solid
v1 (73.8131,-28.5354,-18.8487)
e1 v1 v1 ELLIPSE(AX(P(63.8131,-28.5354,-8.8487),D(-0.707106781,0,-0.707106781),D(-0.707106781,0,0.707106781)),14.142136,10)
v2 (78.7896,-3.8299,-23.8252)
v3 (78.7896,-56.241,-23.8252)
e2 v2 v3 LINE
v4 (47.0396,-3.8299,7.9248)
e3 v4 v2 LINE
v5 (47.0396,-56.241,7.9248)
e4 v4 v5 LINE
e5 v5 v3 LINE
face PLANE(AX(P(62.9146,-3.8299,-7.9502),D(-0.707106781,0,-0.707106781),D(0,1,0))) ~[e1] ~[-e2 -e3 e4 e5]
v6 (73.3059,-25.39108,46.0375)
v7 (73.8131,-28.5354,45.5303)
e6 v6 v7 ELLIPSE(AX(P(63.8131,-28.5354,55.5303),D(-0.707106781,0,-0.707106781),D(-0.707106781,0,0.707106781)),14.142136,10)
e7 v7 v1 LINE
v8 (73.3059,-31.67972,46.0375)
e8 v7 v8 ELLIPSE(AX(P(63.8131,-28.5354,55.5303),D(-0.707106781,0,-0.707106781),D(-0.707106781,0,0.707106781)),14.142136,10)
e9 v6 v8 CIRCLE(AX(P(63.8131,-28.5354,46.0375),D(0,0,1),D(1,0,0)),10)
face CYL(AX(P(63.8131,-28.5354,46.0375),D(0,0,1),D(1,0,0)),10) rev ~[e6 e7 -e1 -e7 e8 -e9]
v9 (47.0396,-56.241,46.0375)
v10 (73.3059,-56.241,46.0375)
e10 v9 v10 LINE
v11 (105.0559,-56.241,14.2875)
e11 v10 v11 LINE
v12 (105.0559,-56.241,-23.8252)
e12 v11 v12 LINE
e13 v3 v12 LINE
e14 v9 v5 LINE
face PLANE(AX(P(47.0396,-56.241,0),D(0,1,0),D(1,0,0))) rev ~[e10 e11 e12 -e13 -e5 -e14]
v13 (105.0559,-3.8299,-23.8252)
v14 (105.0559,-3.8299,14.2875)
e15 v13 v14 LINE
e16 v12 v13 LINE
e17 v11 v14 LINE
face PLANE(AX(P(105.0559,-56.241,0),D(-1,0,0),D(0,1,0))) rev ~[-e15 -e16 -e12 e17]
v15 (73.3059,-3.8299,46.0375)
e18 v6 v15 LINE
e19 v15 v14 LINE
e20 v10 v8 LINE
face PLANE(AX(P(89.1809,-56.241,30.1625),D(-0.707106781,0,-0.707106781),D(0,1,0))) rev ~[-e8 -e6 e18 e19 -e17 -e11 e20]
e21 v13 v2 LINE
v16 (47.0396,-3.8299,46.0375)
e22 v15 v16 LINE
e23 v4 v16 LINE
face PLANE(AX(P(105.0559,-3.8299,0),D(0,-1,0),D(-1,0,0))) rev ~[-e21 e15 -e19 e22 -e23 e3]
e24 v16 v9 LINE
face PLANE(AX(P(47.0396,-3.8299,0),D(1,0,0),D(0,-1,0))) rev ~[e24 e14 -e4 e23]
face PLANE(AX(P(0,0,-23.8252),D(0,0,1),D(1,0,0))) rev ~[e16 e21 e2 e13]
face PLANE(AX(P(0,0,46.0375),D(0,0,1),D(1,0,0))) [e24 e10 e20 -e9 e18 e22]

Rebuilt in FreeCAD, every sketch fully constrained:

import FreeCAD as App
import Part
import Sketcher
Q = App.Units.Quantity


def edges_at(feature, points):
    """Names of the edges that pass closest to the given points."""
    edges = feature.Shape.Edges
    near = lambda p: min(range(len(edges)), key=lambda i: edges[i].distToShape(Part.Vertex(*p))[0])
    return sorted({f"Edge{near(p) + 1}" for p in points})


def add_polygon(sketch, points):
    """Adds a closed chain of lines whose ends are joined by coincident constraints."""
    first, n = sketch.GeometryCount, len(points)
    for a, b in zip(points, points[1:] + points[:1]):
        sketch.addGeometry(Part.LineSegment(App.Vector(*a, 0), App.Vector(*b, 0)), False)
    for i in range(n):
        sketch.addConstraint(Sketcher.Constraint("Coincident", first + i, 2, first + (i + 1) % n, 1))

doc = App.newDocument("Part")
body = doc.addObject("PartDesign::Body", "Body")

# Sketch on XY plane
sketch1 = doc.addObject("Sketcher::SketchObject", "Sketch")
body.addObject(sketch1)
sketch1.AttachmentSupport = (doc.XY_Plane, [""])
sketch1.MapMode = "FlatFace"
add_polygon(sketch1, [(105, -56), (105, -4), (47, -4), (47, -56)])  # lines 0-3
sketch1.addConstraint(Sketcher.Constraint("Vertical", 0))
sketch1.addConstraint(Sketcher.Constraint("Horizontal", 1))
sketch1.addConstraint(Sketcher.Constraint("Vertical", 2))
sketch1.addConstraint(Sketcher.Constraint("Horizontal", 3))
sketch1.addConstraint(Sketcher.Constraint("DistanceX", 1, 2, 1, 1, Q("2.2841 in")))
sketch1.addConstraint(Sketcher.Constraint("DistanceY", 0, 1, 0, 2, Q("52.411 mm")))
sketch1.addConstraint(Sketcher.Constraint("DistanceX", -1, 1, 0, 2, Q("105.056 mm")))
sketch1.addConstraint(Sketcher.Constraint("DistanceY", 0, 2, -1, 1, Q("3.83 mm")))
pad1 = doc.addObject("PartDesign::Pad", "Pad")
body.addObject(pad1)
pad1.Profile = sketch1
pad1.Type = "TwoLengths"
pad1.Length = Q("1.8125 in")
pad1.Length2 = Q("0.938 in")
doc.recompute()

chamfer = doc.addObject("PartDesign::Chamfer", "Chamfer")
body.addObject(chamfer)
chamfer.Base = (pad1, edges_at(pad1, [(47.04, -30.035, -23.825)]))
chamfer.Size = Q("1.25 in")
doc.recompute()

chamfer2 = doc.addObject("PartDesign::Chamfer", "Chamfer001")
body.addObject(chamfer2)
chamfer2.Base = (chamfer, edges_at(chamfer, [(105.056, -30.035, 46.038)]))
chamfer2.Size = Q("1.25 in")

# Sketch on XY plane
sketch2 = doc.addObject("Sketcher::SketchObject", "Sketch001")
body.addObject(sketch2)
sketch2.AttachmentSupport = (doc.XY_Plane, [""])
sketch2.MapMode = "FlatFace"
sketch2.AttachmentOffset = App.Placement(App.Vector(0, 0, 1.8125 * 25.4), App.Rotation())
sketch2.addGeometry(Part.Circle(App.Vector(64, -29, 0), App.Vector(0, 0, 1), 10), False)
sketch2.addConstraint(Sketcher.Constraint("Diameter", 0, Q("0.7874 in")))
sketch2.addConstraint(Sketcher.Constraint("DistanceX", -1, 1, 0, 3, Q("63.813 mm")))
sketch2.addConstraint(Sketcher.Constraint("DistanceY", 0, 3, -1, 1, Q("28.5354 mm")))
pocket1 = doc.addObject("PartDesign::Pocket", "Pocket")
body.addObject(pocket1)
pocket1.Profile = sketch2
pocket1.Type = "ThroughAll"

doc.recompute()
